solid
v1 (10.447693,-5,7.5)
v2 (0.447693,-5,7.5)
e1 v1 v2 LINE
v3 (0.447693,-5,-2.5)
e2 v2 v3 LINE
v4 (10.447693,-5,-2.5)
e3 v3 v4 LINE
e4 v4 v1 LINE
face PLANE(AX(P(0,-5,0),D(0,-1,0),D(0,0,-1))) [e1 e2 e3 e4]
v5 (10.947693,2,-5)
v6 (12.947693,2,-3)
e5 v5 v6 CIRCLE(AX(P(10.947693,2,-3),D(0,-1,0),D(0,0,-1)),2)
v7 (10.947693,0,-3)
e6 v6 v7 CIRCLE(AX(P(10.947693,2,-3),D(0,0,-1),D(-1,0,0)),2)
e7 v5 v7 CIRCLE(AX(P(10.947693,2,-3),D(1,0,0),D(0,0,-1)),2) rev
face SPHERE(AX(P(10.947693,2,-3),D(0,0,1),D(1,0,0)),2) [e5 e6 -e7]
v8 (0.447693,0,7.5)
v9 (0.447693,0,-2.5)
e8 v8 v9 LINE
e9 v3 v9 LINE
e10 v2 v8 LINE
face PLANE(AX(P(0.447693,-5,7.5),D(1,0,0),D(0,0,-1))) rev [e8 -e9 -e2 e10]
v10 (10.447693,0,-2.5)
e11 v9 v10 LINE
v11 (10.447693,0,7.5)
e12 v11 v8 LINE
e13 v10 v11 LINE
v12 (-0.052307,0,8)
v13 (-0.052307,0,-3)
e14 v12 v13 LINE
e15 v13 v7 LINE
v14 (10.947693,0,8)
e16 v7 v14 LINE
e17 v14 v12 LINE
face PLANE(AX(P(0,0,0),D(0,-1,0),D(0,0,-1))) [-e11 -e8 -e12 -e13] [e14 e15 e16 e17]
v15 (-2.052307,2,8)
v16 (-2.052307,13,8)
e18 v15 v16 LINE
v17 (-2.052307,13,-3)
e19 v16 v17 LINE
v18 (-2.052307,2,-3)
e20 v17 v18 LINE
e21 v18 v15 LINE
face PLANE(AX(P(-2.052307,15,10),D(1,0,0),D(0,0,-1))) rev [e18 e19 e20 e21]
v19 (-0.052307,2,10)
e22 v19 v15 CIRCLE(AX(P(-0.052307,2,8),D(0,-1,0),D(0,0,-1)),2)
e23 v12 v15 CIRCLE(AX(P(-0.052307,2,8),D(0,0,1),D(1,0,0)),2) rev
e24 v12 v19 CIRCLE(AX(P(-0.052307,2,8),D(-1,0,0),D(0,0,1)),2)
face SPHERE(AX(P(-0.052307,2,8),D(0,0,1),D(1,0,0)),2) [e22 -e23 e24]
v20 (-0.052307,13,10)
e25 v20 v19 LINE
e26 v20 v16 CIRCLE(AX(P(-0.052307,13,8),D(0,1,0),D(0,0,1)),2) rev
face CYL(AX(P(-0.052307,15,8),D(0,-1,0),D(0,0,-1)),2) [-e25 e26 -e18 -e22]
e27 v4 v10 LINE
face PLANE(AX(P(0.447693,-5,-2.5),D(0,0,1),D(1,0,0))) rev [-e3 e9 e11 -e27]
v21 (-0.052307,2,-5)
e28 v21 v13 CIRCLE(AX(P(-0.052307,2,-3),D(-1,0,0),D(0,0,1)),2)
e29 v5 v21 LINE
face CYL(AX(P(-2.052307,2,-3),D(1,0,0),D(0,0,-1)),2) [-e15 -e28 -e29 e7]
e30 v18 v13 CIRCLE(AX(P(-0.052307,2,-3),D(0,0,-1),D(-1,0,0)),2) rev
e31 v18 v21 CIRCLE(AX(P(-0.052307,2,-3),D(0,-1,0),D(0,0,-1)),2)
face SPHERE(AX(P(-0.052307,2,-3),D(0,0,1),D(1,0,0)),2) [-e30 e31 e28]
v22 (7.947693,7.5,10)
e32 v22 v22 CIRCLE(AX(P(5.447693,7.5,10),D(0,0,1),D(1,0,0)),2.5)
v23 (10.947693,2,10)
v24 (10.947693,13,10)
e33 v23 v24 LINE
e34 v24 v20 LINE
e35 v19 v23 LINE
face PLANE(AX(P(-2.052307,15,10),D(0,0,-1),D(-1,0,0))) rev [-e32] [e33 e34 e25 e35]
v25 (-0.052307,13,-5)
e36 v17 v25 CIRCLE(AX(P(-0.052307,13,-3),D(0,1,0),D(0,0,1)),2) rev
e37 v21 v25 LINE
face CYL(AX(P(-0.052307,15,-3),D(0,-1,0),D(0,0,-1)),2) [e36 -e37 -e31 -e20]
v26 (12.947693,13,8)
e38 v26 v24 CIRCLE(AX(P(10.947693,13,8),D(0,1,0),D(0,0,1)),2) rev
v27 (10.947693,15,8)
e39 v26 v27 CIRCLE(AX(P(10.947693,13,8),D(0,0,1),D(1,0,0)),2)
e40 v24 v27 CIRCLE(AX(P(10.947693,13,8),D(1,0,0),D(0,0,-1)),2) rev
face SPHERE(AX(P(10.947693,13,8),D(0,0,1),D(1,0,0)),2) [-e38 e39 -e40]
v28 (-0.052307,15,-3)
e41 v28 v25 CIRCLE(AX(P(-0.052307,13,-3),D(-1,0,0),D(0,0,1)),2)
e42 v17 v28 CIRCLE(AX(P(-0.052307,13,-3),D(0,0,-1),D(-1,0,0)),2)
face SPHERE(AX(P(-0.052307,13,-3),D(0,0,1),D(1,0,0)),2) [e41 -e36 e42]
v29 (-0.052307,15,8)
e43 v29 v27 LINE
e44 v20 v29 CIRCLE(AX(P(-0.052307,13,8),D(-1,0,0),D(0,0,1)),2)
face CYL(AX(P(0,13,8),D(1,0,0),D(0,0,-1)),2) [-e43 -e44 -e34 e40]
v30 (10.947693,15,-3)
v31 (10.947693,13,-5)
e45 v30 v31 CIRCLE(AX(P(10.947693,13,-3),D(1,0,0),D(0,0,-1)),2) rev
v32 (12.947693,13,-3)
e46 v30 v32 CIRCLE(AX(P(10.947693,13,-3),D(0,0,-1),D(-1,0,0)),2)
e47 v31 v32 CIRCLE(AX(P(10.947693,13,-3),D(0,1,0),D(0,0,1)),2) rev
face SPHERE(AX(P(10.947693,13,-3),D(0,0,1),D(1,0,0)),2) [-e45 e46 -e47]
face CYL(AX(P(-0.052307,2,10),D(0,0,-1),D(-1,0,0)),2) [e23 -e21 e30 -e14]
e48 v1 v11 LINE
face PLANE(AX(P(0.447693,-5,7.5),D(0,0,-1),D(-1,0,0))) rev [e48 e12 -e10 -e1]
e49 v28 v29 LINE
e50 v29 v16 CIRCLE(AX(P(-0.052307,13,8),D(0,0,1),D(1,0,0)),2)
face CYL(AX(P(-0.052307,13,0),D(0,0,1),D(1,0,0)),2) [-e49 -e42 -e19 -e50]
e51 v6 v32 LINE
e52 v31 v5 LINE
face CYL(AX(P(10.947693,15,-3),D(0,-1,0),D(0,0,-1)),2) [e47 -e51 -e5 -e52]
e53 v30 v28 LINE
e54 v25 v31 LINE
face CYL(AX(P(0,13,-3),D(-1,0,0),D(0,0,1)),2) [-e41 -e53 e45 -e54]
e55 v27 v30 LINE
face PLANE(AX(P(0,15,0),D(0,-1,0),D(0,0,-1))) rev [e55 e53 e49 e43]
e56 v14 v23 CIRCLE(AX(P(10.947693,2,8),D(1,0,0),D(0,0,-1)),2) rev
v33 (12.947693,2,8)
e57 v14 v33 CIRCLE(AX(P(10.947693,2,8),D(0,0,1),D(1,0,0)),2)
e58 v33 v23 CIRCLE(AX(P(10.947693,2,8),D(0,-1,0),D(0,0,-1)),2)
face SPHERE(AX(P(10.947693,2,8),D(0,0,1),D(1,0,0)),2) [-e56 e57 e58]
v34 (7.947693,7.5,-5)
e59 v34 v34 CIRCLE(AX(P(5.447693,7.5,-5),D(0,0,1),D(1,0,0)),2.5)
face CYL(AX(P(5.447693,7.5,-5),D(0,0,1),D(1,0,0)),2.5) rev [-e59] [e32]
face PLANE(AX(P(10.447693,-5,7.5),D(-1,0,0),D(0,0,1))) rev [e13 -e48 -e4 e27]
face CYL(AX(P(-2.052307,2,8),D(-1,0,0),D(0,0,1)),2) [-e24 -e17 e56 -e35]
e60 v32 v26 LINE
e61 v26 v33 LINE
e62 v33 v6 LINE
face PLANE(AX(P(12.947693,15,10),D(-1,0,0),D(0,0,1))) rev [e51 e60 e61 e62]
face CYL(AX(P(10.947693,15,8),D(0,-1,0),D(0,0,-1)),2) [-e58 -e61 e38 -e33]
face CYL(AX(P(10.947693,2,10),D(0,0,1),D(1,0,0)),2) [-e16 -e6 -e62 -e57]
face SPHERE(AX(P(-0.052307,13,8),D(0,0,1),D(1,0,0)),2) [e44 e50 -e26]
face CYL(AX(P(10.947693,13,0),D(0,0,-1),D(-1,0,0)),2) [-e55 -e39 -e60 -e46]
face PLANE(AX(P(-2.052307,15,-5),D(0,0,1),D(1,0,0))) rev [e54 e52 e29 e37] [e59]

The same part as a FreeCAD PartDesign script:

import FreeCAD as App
import Part
import Sketcher
from FreeCAD import Vector


def edges_at(feature, points):
    """Names of the edges that pass closest to the given points."""
    edges = feature.Shape.Edges
    near = lambda p: min(range(len(edges)), key=lambda i: edges[i].distToShape(Part.Vertex(*p))[0])
    return sorted({f"Edge{near(p) + 1}" for p in points})


def add_polygon(sketch, points):
    """Adds a closed chain of lines whose ends are joined by coincident constraints."""
    first, n = sketch.GeometryCount, len(points)
    for a, b in zip(points, points[1:] + points[:1]):
        sketch.addGeometry(Part.LineSegment(App.Vector(*a, 0), App.Vector(*b, 0)), False)
    for i in range(n):
        sketch.addConstraint(Sketcher.Constraint("Coincident", first + i, 2, first + (i + 1) % n, 1))

doc = App.newDocument("Part")
body = doc.addObject("PartDesign::Body", "Body")

# Sketch on XZ plane
sketch1 = body.newObject("Sketcher::SketchObject", "Sketch")
sketch1.AttachmentSupport = (doc.getObject("XZ_Plane"), [""])
sketch1.MapMode = "FlatFace"
add_polygon(sketch1, [(-2, -5), (-2, 10), (13, 10), (13, -5)])  # lines 0-3
sketch1.addConstraint(Sketcher.Constraint("Vertical", 0))
sketch1.addConstraint(Sketcher.Constraint("Horizontal", 1))
sketch1.addConstraint(Sketcher.Constraint("Vertical", 2))
sketch1.addConstraint(Sketcher.Constraint("Horizontal", 3))
sketch1.addConstraint(Sketcher.Constraint("Equal", 3, 0))
sketch1.addConstraint(Sketcher.Constraint("DistanceX", 1, 1, 1, 2, 15.0))
sketch1.addConstraint(Sketcher.Constraint("DistanceY", -1, 1, 0, 2, 10.0))
sketch1.addConstraint(Sketcher.Constraint("DistanceX", 0, 2, -1, 1, 2.052307))
pad1 = body.newObject("PartDesign::Pad", "Pad")
pad1.Profile = sketch1
pad1.Length = 15
pad1.Reversed = True

# Sketch on XZ plane
sketch2 = body.newObject("Sketcher::SketchObject", "Sketch001")
sketch2.AttachmentSupport = (doc.getObject("XZ_Plane"), [""])
sketch2.MapMode = "FlatFace"
add_polygon(sketch2, [(0, 8), (0, -2), (10, -2), (10, 8)])  # lines 0-3
sketch2.addConstraint(Sketcher.Constraint("Vertical", 0))
sketch2.addConstraint(Sketcher.Constraint("Horizontal", 1))
sketch2.addConstraint(Sketcher.Constraint("Vertical", 2))
sketch2.addConstraint(Sketcher.Constraint("Horizontal", 3))
sketch2.addConstraint(Sketcher.Constraint("Equal", 3, 0))
sketch2.addConstraint(Sketcher.Constraint("DistanceX", 1, 1, 1, 2, 10.0))
sketch2.addConstraint(Sketcher.Constraint("DistanceY", 0, 2, -1, 1, 2.5))
sketch2.addConstraint(Sketcher.Constraint("DistanceX", -1, 1, 0, 2, 0.447693))
pad2 = body.newObject("PartDesign::Pad", "Pad001")
pad2.Profile = sketch2
pad2.Length = 5

# Sketch on XY plane
sketch3 = body.newObject("Sketcher::SketchObject", "Sketch002")
sketch3.AttachmentSupport = (doc.getObject("XY_Plane"), [""])
sketch3.MapMode = "FlatFace"
sketch3.AttachmentOffset = App.Placement(Vector(0, 0, 10), App.Rotation())
sketch3.addGeometry(Part.Circle(Vector(5.4, 7.5, 0), Vector(0, 0, 1), 2.5), False)
sketch3.addConstraint(Sketcher.Constraint("Diameter", 0, 5.0))
sketch3.addConstraint(Sketcher.Constraint("DistanceY", -1, 1, 0, 3, 7.5))
sketch3.addConstraint(Sketcher.Constraint("DistanceX", -1, 1, 0, 3, 5.447693))
pocket1 = body.newObject("PartDesign::Pocket", "Pocket")
pocket1.Profile = sketch3
pocket1.Type = "ThroughAll"
doc.recompute()

fillet = body.newObject("PartDesign::Fillet", "Fillet")
fillet.Base = (pocket1, edges_at(pocket1, [
    (-2.052, 15, 2.5),
    (5.448, 15, 10),
    (12.948, 15, 2.5),
    (5.448, 0, 10),
    (-2.052, 0, 2.5),
    (5.448, 0, -5),
    (12.948, 0, 2.5),
    (12.948, 7.5, 10),
    (-2.052, 7.5, 10),
    (-2.052, 7.5, -5),
    (12.948, 7.5, -5),
    (5.448, 15, -5),
]))
fillet.Radius = 2

doc.recompute()
